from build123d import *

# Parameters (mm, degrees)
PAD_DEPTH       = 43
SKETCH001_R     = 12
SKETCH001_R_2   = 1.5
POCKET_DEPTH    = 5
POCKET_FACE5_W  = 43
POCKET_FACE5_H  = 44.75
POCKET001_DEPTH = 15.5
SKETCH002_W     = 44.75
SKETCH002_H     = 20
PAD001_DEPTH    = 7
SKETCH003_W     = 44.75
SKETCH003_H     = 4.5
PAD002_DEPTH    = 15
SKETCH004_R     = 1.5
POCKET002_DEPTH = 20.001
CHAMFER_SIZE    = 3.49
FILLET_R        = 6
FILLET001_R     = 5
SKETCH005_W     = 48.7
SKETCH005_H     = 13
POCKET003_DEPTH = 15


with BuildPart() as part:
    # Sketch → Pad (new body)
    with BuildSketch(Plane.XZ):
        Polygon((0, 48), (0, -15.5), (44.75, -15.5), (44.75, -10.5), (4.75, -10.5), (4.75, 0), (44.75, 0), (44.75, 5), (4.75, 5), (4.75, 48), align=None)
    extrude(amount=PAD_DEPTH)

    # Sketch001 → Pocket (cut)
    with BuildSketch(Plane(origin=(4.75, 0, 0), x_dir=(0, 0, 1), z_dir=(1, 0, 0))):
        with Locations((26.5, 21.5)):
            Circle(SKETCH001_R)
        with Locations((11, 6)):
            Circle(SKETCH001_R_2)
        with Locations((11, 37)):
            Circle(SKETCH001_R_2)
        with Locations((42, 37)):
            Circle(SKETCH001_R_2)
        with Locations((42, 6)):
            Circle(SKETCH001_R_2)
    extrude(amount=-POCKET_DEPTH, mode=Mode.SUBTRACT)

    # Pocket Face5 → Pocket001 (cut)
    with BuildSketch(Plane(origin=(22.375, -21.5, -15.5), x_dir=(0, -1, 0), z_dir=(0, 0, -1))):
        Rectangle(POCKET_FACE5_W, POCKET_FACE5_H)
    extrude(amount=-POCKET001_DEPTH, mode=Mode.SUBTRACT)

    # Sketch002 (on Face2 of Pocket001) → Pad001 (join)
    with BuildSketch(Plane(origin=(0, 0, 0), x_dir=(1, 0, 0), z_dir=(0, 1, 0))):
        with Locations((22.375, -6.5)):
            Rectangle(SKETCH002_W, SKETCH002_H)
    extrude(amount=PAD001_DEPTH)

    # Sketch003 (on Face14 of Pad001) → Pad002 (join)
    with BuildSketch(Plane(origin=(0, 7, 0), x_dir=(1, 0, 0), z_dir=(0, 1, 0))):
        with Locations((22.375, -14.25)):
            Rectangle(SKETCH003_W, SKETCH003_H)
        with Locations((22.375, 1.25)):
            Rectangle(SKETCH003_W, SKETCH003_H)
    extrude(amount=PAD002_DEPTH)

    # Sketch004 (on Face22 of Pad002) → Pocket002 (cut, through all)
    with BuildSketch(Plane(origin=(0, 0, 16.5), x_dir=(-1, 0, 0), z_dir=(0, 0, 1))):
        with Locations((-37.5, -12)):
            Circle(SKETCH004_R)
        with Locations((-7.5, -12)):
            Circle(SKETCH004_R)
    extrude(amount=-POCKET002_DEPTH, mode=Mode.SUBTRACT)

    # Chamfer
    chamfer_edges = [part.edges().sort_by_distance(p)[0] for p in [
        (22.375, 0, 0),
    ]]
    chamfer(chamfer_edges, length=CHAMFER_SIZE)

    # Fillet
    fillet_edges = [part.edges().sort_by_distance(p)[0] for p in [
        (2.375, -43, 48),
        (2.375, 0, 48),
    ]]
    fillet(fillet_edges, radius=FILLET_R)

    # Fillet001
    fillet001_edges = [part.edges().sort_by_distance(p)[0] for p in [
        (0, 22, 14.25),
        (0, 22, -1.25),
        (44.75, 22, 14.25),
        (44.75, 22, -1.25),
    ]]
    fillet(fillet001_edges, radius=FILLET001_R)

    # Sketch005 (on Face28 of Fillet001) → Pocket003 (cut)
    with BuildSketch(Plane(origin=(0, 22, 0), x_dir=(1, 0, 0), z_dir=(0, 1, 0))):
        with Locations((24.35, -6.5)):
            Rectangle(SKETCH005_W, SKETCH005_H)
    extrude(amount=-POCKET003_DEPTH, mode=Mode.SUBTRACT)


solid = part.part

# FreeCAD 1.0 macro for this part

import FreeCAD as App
import Part
import Sketcher
from FreeCAD import Vector


def edges_at(feature, points):
    """Names of the edges that pass closest to the given points."""
    edges = feature.Shape.Edges
    near = lambda p: min(range(len(edges)), key=lambda i: edges[i].distToShape(Part.Vertex(*p))[0])
    return sorted({f"Edge{near(p) + 1}" for p in points})


def add_polygon(sketch, points):
    """Adds a closed chain of lines whose ends are joined by coincident constraints."""
    first, n = sketch.GeometryCount, len(points)
    for a, b in zip(points, points[1:] + points[:1]):
        sketch.addGeometry(Part.LineSegment(App.Vector(*a, 0), App.Vector(*b, 0)), False)
    for i in range(n):
        sketch.addConstraint(Sketcher.Constraint("Coincident", first + i, 2, first + (i + 1) % n, 1))

doc = App.newDocument("Part")
params = doc.addObject("Spreadsheet::Sheet", "Params")
for row, (alias, value) in enumerate([
    ("sketch1_width", "40 mm"),
    ("sketch1_height", "5 mm"),
    ("sketch1_height2", "43 mm"),
    ("sketch1_height3", "63.5 mm"),
    ("sketch1_width2", "44.75 mm"),
    ("pad1_length", "43 mm"),
    ("sketch2_diameter", "24 mm"),
    ("sketch2_diameter2", "3 mm"),
    ("pocket1_length", "5 mm"),
    ("sketch3_height", "43 mm"),
    ("sketch3_width", "44.75 mm"),
    ("pocket2_length", "15.5 mm"),
    ("sketch4_height", "20 mm"),
    ("sketch4_width", "44.75 mm"),
    ("pad2_length", "7 mm"),
    ("sketch5_height", "4.5 mm"),
    ("sketch5_width", "44.75 mm"),
    ("pad3_length", "15 mm"),
    ("sketch6_diameter", "3 mm"),
    ("chamfer_size", "3.49 mm"),
    ("fillet_radius", "6 mm"),
    ("fillet2_radius", "5 mm"),
    ("sketch7_height", "13 mm"),
    ("sketch7_width", "48.7 mm"),
    ("pocket4_length", "15 mm"),
], start=1):
    params.set(f"A{row}", alias)
    params.set(f"B{row}", "=" + value)
    params.setAlias(f"B{row}", alias)

body = doc.addObject("PartDesign::Body", "Body")

# Sketch on XZ plane
sketch1 = doc.addObject("Sketcher::SketchObject", "Sketch")
body.addObject(sketch1)
sketch1.AttachmentSupport = (doc.XZ_Plane, [""])
sketch1.MapMode = "FlatFace"
add_polygon(sketch1, [(0, 48), (0, -15.5), (44.8, -15.5), (44.8, -10.5), (4.8, -10.5), (4.8, 0), (44.8, 0), (44.8, 5), (4.8, 5), (4.8, 48)])  # lines 0-9
sketch1.addConstraint([
    Sketcher.Constraint("Vertical", 0),
    Sketcher.Constraint("Horizontal", 1),
    Sketcher.Constraint("Vertical", 2),
    Sketcher.Constraint("Horizontal", 3),
    Sketcher.Constraint("Vertical", 4),
    Sketcher.Constraint("Horizontal", 5),
    Sketcher.Constraint("Vertical", 6),
    Sketcher.Constraint("Horizontal", 7),
    Sketcher.Constraint("Vertical", 8),
    Sketcher.Constraint("Horizontal", 9),
    Sketcher.Constraint("PointOnObject", 0, 2, -2),
    Sketcher.Constraint("PointOnObject", 4, 2, -1),
    Sketcher.Constraint("Vertical", 2, 2, 5, 2),
    Sketcher.Constraint("Vertical", 4, 2, 7, 2),
    Sketcher.Constraint("Equal", 2, 6),
    Sketcher.Constraint("DistanceX", 3, 2, 3, 1, 40.0),
    Sketcher.Constraint("DistanceY", 2, 1, 2, 2, 5.0),
    Sketcher.Constraint("DistanceY", 8, 1, 8, 2, 43.0),
    Sketcher.Constraint("DistanceY", 0, 2, 0, 1, 63.5),
    Sketcher.Constraint("DistanceX", 1, 1, 1, 2, 44.75),
])
sketch1.setExpression("Constraints[25]", "Params.sketch1_width")
sketch1.setExpression("Constraints[26]", "Params.sketch1_height")
sketch1.setExpression("Constraints[27]", "Params.sketch1_height2")
sketch1.setExpression("Constraints[28]", "Params.sketch1_height3")
sketch1.setExpression("Constraints[29]", "Params.sketch1_width2")
pad1 = doc.addObject("PartDesign::Pad", "Pad")
body.addObject(pad1)
pad1.Profile = sketch1
pad1.setExpression("Length", "Params.pad1_length")

# Sketch on YZ plane
sketch2 = doc.addObject("Sketcher::SketchObject", "Sketch001")
body.addObject(sketch2)
sketch2.AttachmentSupport = (doc.YZ_Plane, [""])
sketch2.MapMode = "FlatFace"
sketch2.AttachmentOffset = App.Placement(Vector(0, 0, 4.75), App.Rotation())
sketch2.addGeometry([
    Part.Circle(Vector(-21.5, 26.5, 0), Vector(0, 0, 1), 12),  # 0
    Part.Circle(Vector(-6, 11, 0), Vector(0, 0, 1), 1.5),  # 1
    Part.Circle(Vector(-37, 11, 0), Vector(0, 0, 1), 1.5),  # 2
    Part.Circle(Vector(-37, 42, 0), Vector(0, 0, 1), 1.5),  # 3
    Part.Circle(Vector(-6, 42, 0), Vector(0, 0, 1), 1.5),  # 4
], False)
sketch2.addConstraint([
    Sketcher.Constraint("Equal", 1, 2),
    Sketcher.Constraint("Equal", 2, 3),
    Sketcher.Constraint("Equal", 3, 4),
    Sketcher.Constraint("Horizontal", 1, 3, 2, 3),
    Sketcher.Constraint("Horizontal", 3, 3, 4, 3),
    Sketcher.Constraint("Vertical", 2, 3, 3, 3),
    Sketcher.Constraint("Vertical", 1, 3, 4, 3),
    Sketcher.Constraint("Diameter", 0, 24.0),
    Sketcher.Constraint("Diameter", 1, 3.0),
    Sketcher.Constraint("DistanceX", 1, 3, -1, 1, 6.0),
    Sketcher.Constraint("DistanceY", -1, 1, 1, 3, 11.0),
    Sketcher.Constraint("DistanceX", 2, 3, -1, 1, 37.0),
    Sketcher.Constraint("DistanceY", -1, 1, 3, 3, 42.0),
    Sketcher.Constraint("DistanceX", 0, 3, -1, 1, 21.5),
    Sketcher.Constraint("DistanceY", -1, 1, 0, 3, 26.5),
])
sketch2.setExpression("Constraints[7]", "Params.sketch2_diameter")
sketch2.setExpression("Constraints[8]", "Params.sketch2_diameter2")
pocket1 = doc.addObject("PartDesign::Pocket", "Pocket")
body.addObject(pocket1)
pocket1.Profile = sketch2
pocket1.setExpression("Length", "Params.pocket1_length")

# Sketch on XY plane
sketch3 = doc.addObject("Sketcher::SketchObject", "Sketch002")
body.addObject(sketch3)
sketch3.AttachmentSupport = (doc.XY_Plane, [""])
sketch3.MapMode = "FlatFace"
sketch3.AttachmentOffset = App.Placement(Vector(0, 0, -15.5), App.Rotation())
add_polygon(sketch3, [(0, 0), (45, 0), (45, -43), (0, -43)])  # lines 0-3
sketch3.addConstraint([
    Sketcher.Constraint("Horizontal", 0),
    Sketcher.Constraint("Vertical", 1),
    Sketcher.Constraint("Horizontal", 2),
    Sketcher.Constraint("Vertical", 3),
    Sketcher.Constraint("Coincident", 3, 2, -1, 1),
    Sketcher.Constraint("DistanceY", 1, 2, 1, 1, 43.0),
    Sketcher.Constraint("DistanceX", 0, 1, 0, 2, 44.75),
])
sketch3.setExpression("Constraints[9]", "Params.sketch3_height")
sketch3.setExpression("Constraints[10]", "Params.sketch3_width")
pocket2 = doc.addObject("PartDesign::Pocket", "Pocket001")
body.addObject(pocket2)
pocket2.Profile = sketch3
pocket2.setExpression("Length", "Params.pocket2_length")
pocket2.Reversed = True

# Sketch on XZ plane
sketch4 = doc.addObject("Sketcher::SketchObject", "Sketch003")
body.addObject(sketch4)
sketch4.AttachmentSupport = (doc.XZ_Plane, [""])
sketch4.MapMode = "FlatFace"
add_polygon(sketch4, [(0, -4), (0, 16), (45, 16), (45, -4)])  # lines 0-3
sketch4.addConstraint([
    Sketcher.Constraint("Vertical", 0),
    Sketcher.Constraint("Horizontal", 1),
    Sketcher.Constraint("Vertical", 2),
    Sketcher.Constraint("Horizontal", 3),
    Sketcher.Constraint("PointOnObject", 0, 2, -2),
    Sketcher.Constraint("DistanceY", 0, 1, 0, 2, 20.0),
    Sketcher.Constraint("DistanceX", 1, 1, 1, 2, 44.75),
    Sketcher.Constraint("DistanceY", -1, 1, 0, 2, 16.5),
])
sketch4.setExpression("Constraints[9]", "Params.sketch4_height")
sketch4.setExpression("Constraints[10]", "Params.sketch4_width")
pad2 = doc.addObject("PartDesign::Pad", "Pad001")
body.addObject(pad2)
pad2.Profile = sketch4
pad2.setExpression("Length", "Params.pad2_length")
pad2.Reversed = True

# Sketch on XZ plane
sketch5 = doc.addObject("Sketcher::SketchObject", "Sketch004")
body.addObject(sketch5)
sketch5.AttachmentSupport = (doc.XZ_Plane, [""])
sketch5.MapMode = "FlatFace"
sketch5.AttachmentOffset = App.Placement(Vector(0, 0, -7), App.Rotation())
add_polygon(sketch5, [(0, 12), (0, 16.5), (44.8, 16.5), (44.8, 12)])  # lines 0-3
add_polygon(sketch5, [(0, -3.5), (0, 1), (44.8, 1), (44.8, -3.5)])  # lines 4-7
sketch5.addConstraint([
    Sketcher.Constraint("Vertical", 0),
    Sketcher.Constraint("Horizontal", 1),
    Sketcher.Constraint("Vertical", 2),
    Sketcher.Constraint("Horizontal", 3),
    Sketcher.Constraint("Vertical", 4),
    Sketcher.Constraint("Horizontal", 5),
    Sketcher.Constraint("Vertical", 6),
    Sketcher.Constraint("Horizontal", 7),
    Sketcher.Constraint("PointOnObject", 0, 2, -2),
    Sketcher.Constraint("PointOnObject", 4, 2, -2),
    Sketcher.Constraint("Vertical", 2, 2, 5, 2),
    Sketcher.Constraint("Equal", 2, 4),
    Sketcher.Constraint("DistanceY", 0, 1, 0, 2, 4.5),
    Sketcher.Constraint("DistanceY", -1, 1, 2, 2, 12.0),
    Sketcher.Constraint("DistanceY", -1, 1, 4, 2, 1.0),
    Sketcher.Constraint("DistanceX", 1, 1, 1, 2, 44.75),
])
sketch5.setExpression("Constraints[20]", "Params.sketch5_height")
sketch5.setExpression("Constraints[23]", "Params.sketch5_width")
pad3 = doc.addObject("PartDesign::Pad", "Pad002")
body.addObject(pad3)
pad3.Profile = sketch5
pad3.setExpression("Length", "Params.pad3_length")
pad3.Reversed = True

# Sketch on XY plane
sketch6 = doc.addObject("Sketcher::SketchObject", "Sketch005")
body.addObject(sketch6)
sketch6.AttachmentSupport = (doc.XY_Plane, [""])
sketch6.MapMode = "FlatFace"
sketch6.AttachmentOffset = App.Placement(Vector(0, 0, 16.5), App.Rotation())
sketch6.addGeometry([
    Part.Circle(Vector(37.5, 12, 0), Vector(0, 0, 1), 1.5),
    Part.Circle(Vector(7.5, 12, 0), Vector(0, 0, 1), 1.5),
], False)
sketch6.addConstraint([
    Sketcher.Constraint("Equal", 0, 1),
    Sketcher.Constraint("Horizontal", 0, 3, 1, 3),
    Sketcher.Constraint("Diameter", 0, 3.0),
    Sketcher.Constraint("DistanceY", -1, 1, 0, 3, 12.0),
    Sketcher.Constraint("DistanceX", 1, 3, 0, 3, 30.0),
    Sketcher.Constraint("DistanceX", -1, 1, 0, 3, 37.5),
])
sketch6.setExpression("Constraints[2]", "Params.sketch6_diameter")
pocket3 = doc.addObject("PartDesign::Pocket", "Pocket002")
body.addObject(pocket3)
pocket3.Profile = sketch6
pocket3.Type = "ThroughAll"
doc.recompute()

chamfer = doc.addObject("PartDesign::Chamfer", "Chamfer")
body.addObject(chamfer)
chamfer.Base = (pocket3, edges_at(pocket3, [(22.375, 0, 0)]))
chamfer.setExpression("Size", "Params.chamfer_size")
doc.recompute()

fillet = doc.addObject("PartDesign::Fillet", "Fillet")
body.addObject(fillet)
fillet.Base = (chamfer, edges_at(chamfer, [(2.375, -43, 48), (2.375, 0, 48)]))
fillet.setExpression("Radius", "Params.fillet_radius")
doc.recompute()

fillet2 = doc.addObject("PartDesign::Fillet", "Fillet001")
body.addObject(fillet2)
fillet2.Base = (fillet, edges_at(fillet, [
    (0, 22, 14.25),
    (0, 22, -1.25),
    (44.75, 22, 14.25),
    (44.75, 22, -1.25),
]))
fillet2.setExpression("Radius", "Params.fillet2_radius")

# Sketch on XZ plane
sketch7 = doc.addObject("Sketcher::SketchObject", "Sketch006")
body.addObject(sketch7)
sketch7.AttachmentSupport = (doc.XZ_Plane, [""])
sketch7.MapMode = "FlatFace"
sketch7.AttachmentOffset = App.Placement(Vector(0, 0, -22), App.Rotation())
add_polygon(sketch7, [(0, 0), (0, 13), (49, 13), (49, 0)])  # lines 0-3
sketch7.addConstraint([
    Sketcher.Constraint("Vertical", 0),
    Sketcher.Constraint("Horizontal", 1),
    Sketcher.Constraint("Vertical", 2),
    Sketcher.Constraint("Horizontal", 3),
    Sketcher.Constraint("Coincident", 3, 2, -1, 1),
    Sketcher.Constraint("DistanceY", 0, 1, 0, 2, 13.0),
    Sketcher.Constraint("DistanceX", 1, 1, 1, 2, 48.7),
])
sketch7.setExpression("Constraints[9]", "Params.sketch7_height")
sketch7.setExpression("Constraints[10]", "Params.sketch7_width")
pocket4 = doc.addObject("PartDesign::Pocket", "Pocket003")
body.addObject(pocket4)
pocket4.Profile = sketch7
pocket4.setExpression("Length", "Params.pocket4_length")
pocket4.Reversed = True

doc.recompute()
